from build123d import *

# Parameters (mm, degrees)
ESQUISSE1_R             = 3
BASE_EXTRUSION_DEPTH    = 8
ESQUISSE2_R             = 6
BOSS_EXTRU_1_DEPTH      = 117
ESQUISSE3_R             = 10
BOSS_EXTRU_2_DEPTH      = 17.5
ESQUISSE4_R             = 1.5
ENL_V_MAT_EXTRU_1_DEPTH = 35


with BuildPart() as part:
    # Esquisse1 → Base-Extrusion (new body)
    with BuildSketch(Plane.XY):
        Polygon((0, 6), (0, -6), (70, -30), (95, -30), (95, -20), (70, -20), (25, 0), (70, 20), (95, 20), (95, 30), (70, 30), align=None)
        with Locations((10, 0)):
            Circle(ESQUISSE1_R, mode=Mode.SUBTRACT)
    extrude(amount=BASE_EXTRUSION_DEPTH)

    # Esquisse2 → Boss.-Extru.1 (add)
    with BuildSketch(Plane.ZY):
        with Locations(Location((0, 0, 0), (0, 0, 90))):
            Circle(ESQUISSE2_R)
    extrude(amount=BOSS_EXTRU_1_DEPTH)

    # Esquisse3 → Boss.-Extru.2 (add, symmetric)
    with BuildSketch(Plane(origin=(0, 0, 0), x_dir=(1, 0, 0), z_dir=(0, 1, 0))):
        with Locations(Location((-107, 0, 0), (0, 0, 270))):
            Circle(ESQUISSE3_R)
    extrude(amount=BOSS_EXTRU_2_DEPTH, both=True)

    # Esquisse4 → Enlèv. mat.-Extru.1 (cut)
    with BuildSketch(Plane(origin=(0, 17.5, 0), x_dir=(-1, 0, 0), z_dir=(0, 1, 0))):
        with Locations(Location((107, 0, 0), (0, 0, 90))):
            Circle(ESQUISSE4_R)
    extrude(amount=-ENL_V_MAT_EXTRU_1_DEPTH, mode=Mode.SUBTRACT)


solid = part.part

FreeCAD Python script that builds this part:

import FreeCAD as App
import Part
import Sketcher

V = App.Vector


def add_polygon(sketch, points):
    """Adds a closed chain of lines whose ends are joined by coincident constraints."""
    first, n = sketch.GeometryCount, len(points)
    for a, b in zip(points, points[1:] + points[:1]):
        sketch.addGeometry(Part.LineSegment(App.Vector(*a, 0), App.Vector(*b, 0)), False)
    for i in range(n):
        sketch.addConstraint(Sketcher.Constraint("Coincident", first + i, 2, first + (i + 1) % n, 1))

doc = App.newDocument("Part")
body = doc.addObject("PartDesign::Body", "Body")

# Sketch on XY plane
sketch1 = body.newObject("Sketcher::SketchObject", "Sketch")
sketch1.AttachmentSupport = (doc.getObject("XY_Plane"), [""])
sketch1.MapMode = "FlatFace"
add_polygon(sketch1, [(0, 6), (0, -6), (70, -30), (95, -30), (95, -20), (70, -20), (25, 0), (70, 20), (95, 20), (95, 30), (70, 30)])  # lines 0-10
sketch1.addGeometry(Part.Circle(V(10, 0, 0), V(0, 0, 1), 3), False)  # 11
sketch1.addConstraint(Sketcher.Constraint("Vertical", 0))
sketch1.addConstraint(Sketcher.Constraint("Horizontal", 2))
sketch1.addConstraint(Sketcher.Constraint("Vertical", 3))
sketch1.addConstraint(Sketcher.Constraint("Horizontal", 4))
sketch1.addConstraint(Sketcher.Constraint("Horizontal", 7))
sketch1.addConstraint(Sketcher.Constraint("Vertical", 8))
sketch1.addConstraint(Sketcher.Constraint("Horizontal", 9))
sketch1.addConstraint(Sketcher.Constraint("Symmetric", 0, 2, 10, 2, -1, 1))
sketch1.addConstraint(Sketcher.Constraint("Symmetric", 4, 2, 6, 2, -1))
sketch1.addConstraint(Sketcher.Constraint("Symmetric", 2, 2, 8, 2, -1))
sketch1.addConstraint(Sketcher.Constraint("PointOnObject", 11, 3, -1))
sketch1.addConstraint(Sketcher.Constraint("PointOnObject", 5, 2, -1))
sketch1.addConstraint(Sketcher.Constraint("Vertical", 1, 2, 4, 2))
sketch1.addConstraint(Sketcher.Constraint("Vertical", 6, 2, 9, 2))
sketch1.addConstraint(Sketcher.Constraint("Diameter", 11, 6.0))
sketch1.addConstraint(Sketcher.Constraint("DistanceX", 2, 1, 2, 2, 25.0))
sketch1.addConstraint(Sketcher.Constraint("DistanceY", 0, 2, 0, 1, 12.0))
sketch1.addConstraint(Sketcher.Constraint("DistanceY", 3, 1, 3, 2, 10.0))
sketch1.addConstraint(Sketcher.Constraint("Distance", 1, 74.0))
sketch1.addConstraint(Sketcher.Constraint("DistanceX", -1, 1, 11, 3, 10.0))
sketch1.addConstraint(Sketcher.Constraint("DistanceX", -1, 1, 1, 2, 70.0))
sketch1.addConstraint(Sketcher.Constraint("DistanceX", -1, 1, 5, 2, 25.0))
pad1 = body.newObject("PartDesign::Pad", "Pad")
pad1.Profile = sketch1
pad1.Length = 8

# Sketch on YZ plane
sketch2 = body.newObject("Sketcher::SketchObject", "Sketch001")
sketch2.AttachmentSupport = (doc.getObject("YZ_Plane"), [""])
sketch2.MapMode = "FlatFace"
sketch2.addGeometry(Part.Circle(V(0, 0, 0), V(0, 0, 1), 6), False)
sketch2.addConstraint(Sketcher.Constraint("Coincident", 0, 3, -1, 1))
sketch2.addConstraint(Sketcher.Constraint("Diameter", 0, 12.0))
pad2 = body.newObject("PartDesign::Pad", "Pad001")
pad2.Profile = sketch2
pad2.Length = 117
pad2.Reversed = True

# Sketch on XZ plane
sketch3 = body.newObject("Sketcher::SketchObject", "Sketch002")
sketch3.AttachmentSupport = (doc.getObject("XZ_Plane"), [""])
sketch3.MapMode = "FlatFace"
sketch3.addGeometry(Part.Circle(V(-107, 0, 0), V(0, 0, 1), 10), False)
sketch3.addConstraint(Sketcher.Constraint("PointOnObject", 0, 3, -1))
sketch3.addConstraint(Sketcher.Constraint("Diameter", 0, 20.0))
sketch3.addConstraint(Sketcher.Constraint("DistanceX", 0, 3, -1, 1, 107.0))
pad3 = body.newObject("PartDesign::Pad", "Pad002")
pad3.Profile = sketch3
pad3.Length = 35
pad3.Midplane = True

# Sketch on XZ plane
sketch4 = body.newObject("Sketcher::SketchObject", "Sketch003")
sketch4.AttachmentSupport = (doc.getObject("XZ_Plane"), [""])
sketch4.MapMode = "FlatFace"
sketch4.AttachmentOffset = App.Placement(V(0, 0, -17.5), App.Rotation())
sketch4.addGeometry(Part.Circle(V(-107, 0, 0), V(0, 0, 1), 1.5), False)
sketch4.addConstraint(Sketcher.Constraint("PointOnObject", 0, 3, -1))
sketch4.addConstraint(Sketcher.Constraint("Diameter", 0, 3.0))
sketch4.addConstraint(Sketcher.Constraint("DistanceX", 0, 3, -1, 1, 107.0))
pocket1 = body.newObject("PartDesign::Pocket", "Pocket")
pocket1.Profile = sketch4
pocket1.Length = 35
pocket1.Reversed = True

doc.recompute()
